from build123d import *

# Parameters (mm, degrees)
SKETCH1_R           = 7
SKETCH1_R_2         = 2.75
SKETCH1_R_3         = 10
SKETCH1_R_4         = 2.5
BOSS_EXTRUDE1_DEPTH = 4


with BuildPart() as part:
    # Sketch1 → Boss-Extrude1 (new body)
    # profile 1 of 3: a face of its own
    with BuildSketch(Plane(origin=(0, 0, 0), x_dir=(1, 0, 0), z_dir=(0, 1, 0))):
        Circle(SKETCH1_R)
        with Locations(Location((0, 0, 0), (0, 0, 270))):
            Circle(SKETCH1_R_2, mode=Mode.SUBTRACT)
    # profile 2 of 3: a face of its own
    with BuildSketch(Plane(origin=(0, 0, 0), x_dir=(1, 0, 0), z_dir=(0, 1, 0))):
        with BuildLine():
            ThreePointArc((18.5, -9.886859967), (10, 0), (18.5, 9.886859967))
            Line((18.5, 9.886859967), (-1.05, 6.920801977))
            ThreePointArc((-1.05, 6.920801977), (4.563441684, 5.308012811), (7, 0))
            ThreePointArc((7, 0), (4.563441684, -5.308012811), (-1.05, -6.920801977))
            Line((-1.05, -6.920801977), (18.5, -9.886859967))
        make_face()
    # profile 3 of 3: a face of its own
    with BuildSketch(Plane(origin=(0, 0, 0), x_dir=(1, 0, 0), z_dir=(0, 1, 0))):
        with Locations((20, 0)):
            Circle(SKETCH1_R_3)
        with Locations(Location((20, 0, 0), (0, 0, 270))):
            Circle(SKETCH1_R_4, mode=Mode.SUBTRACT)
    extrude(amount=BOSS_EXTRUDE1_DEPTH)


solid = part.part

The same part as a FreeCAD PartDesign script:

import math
import FreeCAD as App
import Part
import Sketcher

V = App.Vector

doc = App.newDocument("Part")
params = doc.addObject("Spreadsheet::Sheet", "Params")
for row, (alias, value) in enumerate([
    ("sketch1_diameter", "5 mm"),
    ("sketch1_radius", "7 mm"),
    ("sketch1_radius2", "10 mm"),
    ("sketch1_diameter2", "5.5 mm"),
    ("pad1_length", "4 mm"),
], start=1):
    params.set(f"A{row}", alias)
    params.set(f"B{row}", "=" + value)
    params.setAlias(f"B{row}", alias)

body = doc.addObject("PartDesign::Body", "Body")

# Sketch on XZ plane
sketch1 = doc.addObject("Sketcher::SketchObject", "Sketch")
body.addObject(sketch1)
sketch1.AttachmentSupport = (doc.XZ_Plane, [""])
sketch1.MapMode = "FlatFace"
sketch1.addGeometry([
    Part.ArcOfCircle(Part.Circle(V(0, 0, 0), V(0, 0, 1), 7), math.radians(98.626927), math.radians(261.373073)),  # 0
    Part.LineSegment(V(-1.05, 6.920802, 0), V(18.5, 9.88686, 0)),  # 1
    Part.ArcOfCircle(Part.Circle(V(20, 0, 0), V(0, 0, 1), 10), math.radians(-98.626927), math.radians(98.626927)),  # 2
    Part.LineSegment(V(18.5, -9.88686, 0), V(-1.05, -6.920802, 0)),  # 3
    Part.Circle(V(0, 0, 0), V(0, 0, 1), 2.75),  # 4
    Part.Circle(V(20, 0, 0), V(0, 0, 1), 2.5),  # 5
], False)
sketch1.addConstraint([
    Sketcher.Constraint("Tangent", 0, 1, 1, 1),
    Sketcher.Constraint("Tangent", 1, 2, 2, 2),
    Sketcher.Constraint("Tangent", 2, 1, 3, 1),
    Sketcher.Constraint("Tangent", 3, 2, 0, 2),
    Sketcher.Constraint("Coincident", 0, 3, -1, 1),
    Sketcher.Constraint("Coincident", 4, 3, -1, 1),
    Sketcher.Constraint("Coincident", 5, 3, 2, 3),
    Sketcher.Constraint("PointOnObject", 2, 3, -1),
    Sketcher.Constraint("Diameter", 5, 5.0),
    Sketcher.Constraint("Radius", 0, 7.0),
    Sketcher.Constraint("Radius", 2, 10.0),
    Sketcher.Constraint("Diameter", 4, 5.5),
    Sketcher.Constraint("DistanceX", -1, 1, 2, 3, 20.0),
])
sketch1.setExpression("Constraints[8]", "Params.sketch1_diameter")
sketch1.setExpression("Constraints[9]", "Params.sketch1_radius")
sketch1.setExpression("Constraints[10]", "Params.sketch1_radius2")
sketch1.setExpression("Constraints[11]", "Params.sketch1_diameter2")
pad1 = doc.addObject("PartDesign::Pad", "Pad")
body.addObject(pad1)
pad1.Profile = sketch1
pad1.setExpression("Length", "Params.pad1_length")
pad1.Reversed = True

doc.recompute()
